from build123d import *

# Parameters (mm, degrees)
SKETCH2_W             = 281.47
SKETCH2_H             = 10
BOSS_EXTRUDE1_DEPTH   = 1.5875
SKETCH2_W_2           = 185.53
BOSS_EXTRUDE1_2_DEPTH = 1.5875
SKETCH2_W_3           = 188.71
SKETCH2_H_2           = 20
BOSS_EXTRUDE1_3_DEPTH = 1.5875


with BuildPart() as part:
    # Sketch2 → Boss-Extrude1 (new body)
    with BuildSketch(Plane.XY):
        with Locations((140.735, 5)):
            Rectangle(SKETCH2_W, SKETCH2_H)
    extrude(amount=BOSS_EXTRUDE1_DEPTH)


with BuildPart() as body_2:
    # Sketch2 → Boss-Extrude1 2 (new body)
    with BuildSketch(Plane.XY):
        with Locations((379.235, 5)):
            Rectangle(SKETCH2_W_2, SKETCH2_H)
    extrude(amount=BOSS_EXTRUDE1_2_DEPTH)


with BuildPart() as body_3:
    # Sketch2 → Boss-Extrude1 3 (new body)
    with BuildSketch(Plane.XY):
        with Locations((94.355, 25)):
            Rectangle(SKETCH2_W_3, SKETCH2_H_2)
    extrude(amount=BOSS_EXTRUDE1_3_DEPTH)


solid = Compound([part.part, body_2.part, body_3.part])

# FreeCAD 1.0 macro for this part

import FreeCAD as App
import Part
import Sketcher

V = App.Vector


def add_polygon(sketch, points):
    """Adds a closed chain of lines whose ends are joined by coincident constraints."""
    first, n = sketch.GeometryCount, len(points)
    for a, b in zip(points, points[1:] + points[:1]):
        sketch.addGeometry(Part.LineSegment(App.Vector(*a, 0), App.Vector(*b, 0)), False)
    for i in range(n):
        sketch.addConstraint(Sketcher.Constraint("Coincident", first + i, 2, first + (i + 1) % n, 1))

doc = App.newDocument("Part")
params = doc.addObject("Spreadsheet::Sheet", "Params")
for row, (alias, value) in enumerate([
    ("sketch1_height", "10 mm"),
    ("sketch1_width", "281.47 mm"),
    ("pad1_length", "1.5875 mm"),
    ("sketch2_height", "10 mm"),
    ("sketch2_width", "185.53 mm"),
    ("pad2_length", "1.5875 mm"),
    ("sketch3_height", "20 mm"),
    ("sketch3_width", "188.71 mm"),
    ("pad3_length", "1.5875 mm"),
], start=1):
    params.set(f"A{row}", alias)
    params.set(f"B{row}", "=" + value)
    params.setAlias(f"B{row}", alias)

body = doc.addObject("PartDesign::Body", "Body")

# Sketch on XY plane
sketch1 = body.newObject("Sketcher::SketchObject", "Sketch")
sketch1.AttachmentSupport = (doc.getObject("XY_Plane"), [""])
sketch1.MapMode = "FlatFace"
add_polygon(sketch1, [(0, 10), (0, 0), (281, 0), (281, 10)])  # lines 0-3
sketch1.addConstraint(Sketcher.Constraint("Vertical", 0))
sketch1.addConstraint(Sketcher.Constraint("Horizontal", 1))
sketch1.addConstraint(Sketcher.Constraint("Vertical", 2))
sketch1.addConstraint(Sketcher.Constraint("Horizontal", 3))
sketch1.addConstraint(Sketcher.Constraint("Coincident", 0, 2, -1, 1))
sketch1.addConstraint(Sketcher.Constraint("DistanceY", 0, 2, 0, 1, 10.0))
sketch1.addConstraint(Sketcher.Constraint("DistanceX", 1, 1, 1, 2, 281.47))
sketch1.setExpression("Constraints[9]", "Params.sketch1_height")
sketch1.setExpression("Constraints[10]", "Params.sketch1_width")
pad1 = body.newObject("PartDesign::Pad", "Pad")
pad1.Profile = sketch1
pad1.setExpression("Length", "Params.pad1_length")
body2 = doc.addObject("PartDesign::Body", "Body001")

# Sketch on XY plane
sketch2 = body2.newObject("Sketcher::SketchObject", "Sketch001")
sketch2.AttachmentSupport = (doc.getObject("XY_Plane001"), [""])
sketch2.MapMode = "FlatFace"
add_polygon(sketch2, [(286, 10), (286, 0), (472, 0), (472, 10)])  # lines 0-3
sketch2.addConstraint(Sketcher.Constraint("Vertical", 0))
sketch2.addConstraint(Sketcher.Constraint("Horizontal", 1))
sketch2.addConstraint(Sketcher.Constraint("Vertical", 2))
sketch2.addConstraint(Sketcher.Constraint("Horizontal", 3))
sketch2.addConstraint(Sketcher.Constraint("PointOnObject", 0, 2, -1))
sketch2.addConstraint(Sketcher.Constraint("DistanceY", 0, 2, 0, 1, 10.0))
sketch2.addConstraint(Sketcher.Constraint("DistanceX", -1, 1, 1, 2, 472.0))
sketch2.addConstraint(Sketcher.Constraint("DistanceX", 1, 1, 1, 2, 185.53))
sketch2.setExpression("Constraints[9]", "Params.sketch2_height")
sketch2.setExpression("Constraints[11]", "Params.sketch2_width")
pad2 = body2.newObject("PartDesign::Pad", "Pad001")
pad2.Profile = sketch2
pad2.setExpression("Length", "Params.pad2_length")
body3 = doc.addObject("PartDesign::Body", "Body002")

# Sketch on XY plane
sketch3 = body3.newObject("Sketcher::SketchObject", "Sketch002")
sketch3.AttachmentSupport = (doc.getObject("XY_Plane002"), [""])
sketch3.MapMode = "FlatFace"
add_polygon(sketch3, [(0, 35), (0, 15), (189, 15), (189, 35)])  # lines 0-3
sketch3.addConstraint(Sketcher.Constraint("Vertical", 0))
sketch3.addConstraint(Sketcher.Constraint("Horizontal", 1))
sketch3.addConstraint(Sketcher.Constraint("Vertical", 2))
sketch3.addConstraint(Sketcher.Constraint("Horizontal", 3))
sketch3.addConstraint(Sketcher.Constraint("PointOnObject", 0, 2, -2))
sketch3.addConstraint(Sketcher.Constraint("DistanceY", 0, 2, 0, 1, 20.0))
sketch3.addConstraint(Sketcher.Constraint("DistanceY", -1, 1, 0, 2, 15.0))
sketch3.addConstraint(Sketcher.Constraint("DistanceX", 1, 1, 1, 2, 188.71))
sketch3.setExpression("Constraints[9]", "Params.sketch3_height")
sketch3.setExpression("Constraints[11]", "Params.sketch3_width")
pad3 = body3.newObject("PartDesign::Pad", "Pad002")
pad3.Profile = sketch3
pad3.setExpression("Length", "Params.pad3_length")

doc.recompute()
